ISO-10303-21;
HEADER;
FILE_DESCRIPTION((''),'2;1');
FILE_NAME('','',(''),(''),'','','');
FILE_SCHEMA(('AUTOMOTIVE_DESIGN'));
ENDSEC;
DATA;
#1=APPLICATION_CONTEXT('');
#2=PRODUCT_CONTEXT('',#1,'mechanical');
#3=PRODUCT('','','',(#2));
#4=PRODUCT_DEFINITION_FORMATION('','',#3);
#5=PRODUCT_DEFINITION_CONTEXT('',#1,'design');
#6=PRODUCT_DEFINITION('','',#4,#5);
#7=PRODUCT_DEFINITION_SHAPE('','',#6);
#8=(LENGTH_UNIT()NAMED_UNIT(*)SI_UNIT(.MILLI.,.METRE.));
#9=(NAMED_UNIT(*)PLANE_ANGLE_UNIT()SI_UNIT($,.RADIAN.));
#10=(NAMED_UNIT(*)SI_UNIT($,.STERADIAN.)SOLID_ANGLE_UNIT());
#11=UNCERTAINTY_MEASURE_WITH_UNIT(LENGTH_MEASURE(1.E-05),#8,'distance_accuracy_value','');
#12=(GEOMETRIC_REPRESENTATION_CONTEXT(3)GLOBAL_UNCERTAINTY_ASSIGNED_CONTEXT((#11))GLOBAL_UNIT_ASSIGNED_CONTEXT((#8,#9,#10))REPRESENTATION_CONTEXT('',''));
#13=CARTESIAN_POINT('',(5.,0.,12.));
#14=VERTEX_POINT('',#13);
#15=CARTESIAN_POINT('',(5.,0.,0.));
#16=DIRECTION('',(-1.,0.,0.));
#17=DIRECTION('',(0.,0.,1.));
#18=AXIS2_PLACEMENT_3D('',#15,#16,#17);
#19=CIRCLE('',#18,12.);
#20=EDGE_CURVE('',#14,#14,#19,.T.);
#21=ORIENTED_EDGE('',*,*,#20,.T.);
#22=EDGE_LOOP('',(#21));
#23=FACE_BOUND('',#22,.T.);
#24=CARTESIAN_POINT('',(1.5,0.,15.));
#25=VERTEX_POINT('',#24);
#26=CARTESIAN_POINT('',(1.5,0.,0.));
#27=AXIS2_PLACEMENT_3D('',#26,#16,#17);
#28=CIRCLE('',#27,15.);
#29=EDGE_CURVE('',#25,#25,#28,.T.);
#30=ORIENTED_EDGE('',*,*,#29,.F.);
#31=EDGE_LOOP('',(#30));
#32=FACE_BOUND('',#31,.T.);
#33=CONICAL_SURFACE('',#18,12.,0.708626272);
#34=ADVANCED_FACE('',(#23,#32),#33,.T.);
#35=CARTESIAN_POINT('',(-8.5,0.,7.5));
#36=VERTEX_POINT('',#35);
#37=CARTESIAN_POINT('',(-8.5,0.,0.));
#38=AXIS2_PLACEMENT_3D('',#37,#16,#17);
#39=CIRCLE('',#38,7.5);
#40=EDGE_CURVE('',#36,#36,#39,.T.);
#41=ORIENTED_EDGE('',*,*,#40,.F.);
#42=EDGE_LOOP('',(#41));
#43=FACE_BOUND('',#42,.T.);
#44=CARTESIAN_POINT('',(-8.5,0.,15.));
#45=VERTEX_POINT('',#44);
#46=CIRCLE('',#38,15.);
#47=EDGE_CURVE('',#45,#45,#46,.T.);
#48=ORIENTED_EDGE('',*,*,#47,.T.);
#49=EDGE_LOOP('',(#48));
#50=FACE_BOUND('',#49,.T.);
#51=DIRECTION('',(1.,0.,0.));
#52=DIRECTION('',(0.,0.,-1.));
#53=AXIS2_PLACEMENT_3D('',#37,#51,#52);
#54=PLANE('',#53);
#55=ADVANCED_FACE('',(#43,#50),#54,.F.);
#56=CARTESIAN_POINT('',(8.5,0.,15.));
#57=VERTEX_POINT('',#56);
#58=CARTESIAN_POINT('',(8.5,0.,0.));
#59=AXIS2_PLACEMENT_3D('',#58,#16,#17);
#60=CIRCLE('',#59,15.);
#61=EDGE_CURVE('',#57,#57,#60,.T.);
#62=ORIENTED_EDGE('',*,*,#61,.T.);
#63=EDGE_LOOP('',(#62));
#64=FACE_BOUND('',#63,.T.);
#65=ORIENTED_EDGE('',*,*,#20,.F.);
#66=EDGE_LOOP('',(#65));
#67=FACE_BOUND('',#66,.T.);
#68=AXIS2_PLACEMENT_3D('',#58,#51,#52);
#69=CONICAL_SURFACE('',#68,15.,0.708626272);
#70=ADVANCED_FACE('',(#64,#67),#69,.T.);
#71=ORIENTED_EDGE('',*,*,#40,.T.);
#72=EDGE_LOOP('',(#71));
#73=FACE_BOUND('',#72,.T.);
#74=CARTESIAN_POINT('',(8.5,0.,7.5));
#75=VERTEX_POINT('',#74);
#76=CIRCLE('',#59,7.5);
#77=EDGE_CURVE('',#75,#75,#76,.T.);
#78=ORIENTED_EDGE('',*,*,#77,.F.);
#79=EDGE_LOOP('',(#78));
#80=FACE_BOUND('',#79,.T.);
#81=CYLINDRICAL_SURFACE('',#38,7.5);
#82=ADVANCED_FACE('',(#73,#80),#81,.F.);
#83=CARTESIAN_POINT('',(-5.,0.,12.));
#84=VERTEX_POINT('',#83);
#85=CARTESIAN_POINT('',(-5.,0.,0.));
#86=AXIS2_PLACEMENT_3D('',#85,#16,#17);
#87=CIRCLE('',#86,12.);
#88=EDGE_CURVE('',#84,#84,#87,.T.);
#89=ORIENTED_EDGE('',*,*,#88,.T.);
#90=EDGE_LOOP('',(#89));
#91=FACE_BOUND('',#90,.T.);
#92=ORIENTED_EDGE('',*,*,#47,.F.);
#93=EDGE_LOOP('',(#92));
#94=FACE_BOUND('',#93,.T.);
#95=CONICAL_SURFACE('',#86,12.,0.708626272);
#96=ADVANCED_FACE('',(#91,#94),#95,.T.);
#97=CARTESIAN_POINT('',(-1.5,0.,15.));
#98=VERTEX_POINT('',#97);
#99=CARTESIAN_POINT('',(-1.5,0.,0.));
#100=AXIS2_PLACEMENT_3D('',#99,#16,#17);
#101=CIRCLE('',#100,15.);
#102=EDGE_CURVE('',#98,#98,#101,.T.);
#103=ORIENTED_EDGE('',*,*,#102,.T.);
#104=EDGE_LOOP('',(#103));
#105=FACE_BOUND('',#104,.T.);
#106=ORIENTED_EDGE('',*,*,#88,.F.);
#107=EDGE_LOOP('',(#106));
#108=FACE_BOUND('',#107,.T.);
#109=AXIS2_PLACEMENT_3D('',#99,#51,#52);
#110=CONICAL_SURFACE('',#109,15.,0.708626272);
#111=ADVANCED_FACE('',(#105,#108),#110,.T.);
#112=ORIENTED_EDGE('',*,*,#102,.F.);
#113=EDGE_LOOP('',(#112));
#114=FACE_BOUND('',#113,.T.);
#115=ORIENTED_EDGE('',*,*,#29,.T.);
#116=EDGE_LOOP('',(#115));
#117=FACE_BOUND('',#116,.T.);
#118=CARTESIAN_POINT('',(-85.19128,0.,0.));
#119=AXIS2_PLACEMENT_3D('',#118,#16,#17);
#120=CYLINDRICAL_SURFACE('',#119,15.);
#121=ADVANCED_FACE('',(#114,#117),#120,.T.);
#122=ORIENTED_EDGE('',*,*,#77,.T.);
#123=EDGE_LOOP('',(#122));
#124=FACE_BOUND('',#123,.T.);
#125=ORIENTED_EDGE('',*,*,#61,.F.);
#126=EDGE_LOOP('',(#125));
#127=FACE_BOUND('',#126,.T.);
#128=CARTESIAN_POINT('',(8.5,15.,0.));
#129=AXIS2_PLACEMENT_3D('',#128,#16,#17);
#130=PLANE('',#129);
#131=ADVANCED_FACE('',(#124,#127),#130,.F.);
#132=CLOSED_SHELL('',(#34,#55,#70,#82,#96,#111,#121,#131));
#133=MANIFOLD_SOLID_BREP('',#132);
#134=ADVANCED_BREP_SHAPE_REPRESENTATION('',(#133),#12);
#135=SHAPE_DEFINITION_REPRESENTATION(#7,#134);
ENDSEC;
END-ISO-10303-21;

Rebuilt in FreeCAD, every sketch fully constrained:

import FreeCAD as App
import Part
import Sketcher

doc = App.newDocument("Part")
body = doc.addObject("PartDesign::Body", "Body")

sketch1 = body.newObject("Sketcher::SketchObject", "Sketch")
sketch1.AttachmentSupport = (doc.getObject("XY_Plane"), [""])
sketch1.MapMode = "FlatFace"
sketch1.addGeometry([
    Part.LineSegment(App.Vector(-8.5, 15, 0), App.Vector(-8.5, 0, 0)),
    Part.LineSegment(App.Vector(-8.5, 0, 0), App.Vector(8.5, 0, 0)),
    Part.LineSegment(App.Vector(8.5, 0, 0), App.Vector(8.5, 15, 0)),
    Part.LineSegment(App.Vector(8.5, 15, 0), App.Vector(5, 12, 0)),
    Part.LineSegment(App.Vector(5, 12, 0), App.Vector(1.5, 15, 0)),
    Part.LineSegment(App.Vector(1.5, 15, 0), App.Vector(-1.5, 15, 0)),
    Part.LineSegment(App.Vector(-1.5, 15, 0), App.Vector(-5, 12, 0)),
    Part.LineSegment(App.Vector(-5, 12, 0), App.Vector(-8.5, 15, 0)),
], False)
sketch1.addConstraint([
    Sketcher.Constraint("Coincident", 0, 2, 1, 1),
    Sketcher.Constraint("Coincident", 1, 2, 2, 1),
    Sketcher.Constraint("Coincident", 2, 2, 3, 1),
    Sketcher.Constraint("Coincident", 3, 2, 4, 1),
    Sketcher.Constraint("Coincident", 4, 2, 5, 1),
    Sketcher.Constraint("Coincident", 5, 2, 6, 1),
    Sketcher.Constraint("Coincident", 6, 2, 7, 1),
    Sketcher.Constraint("Coincident", 7, 2, 0, 1),
    Sketcher.Constraint("Vertical", 0),
    Sketcher.Constraint("Horizontal", 1),
    Sketcher.Constraint("Vertical", 2),
    Sketcher.Constraint("Horizontal", 5),
    Sketcher.Constraint("Symmetric", 0, 2, 1, 2, -1, 1),
    Sketcher.Constraint("Symmetric", 3, 2, 6, 2, -2),
    Sketcher.Constraint("Parallel", 3, 6),
    Sketcher.Constraint("Parallel", 4, 7),
    Sketcher.Constraint("Horizontal", 2, 2, 4, 2),
    Sketcher.Constraint("Horizontal", 5, 2, 7, 2),
    Sketcher.Constraint("DistanceX", 1, 1, 1, 2, 17.0),
    Sketcher.Constraint("DistanceX", 5, 2, 5, 1, 3.0),
    Sketcher.Constraint("DistanceY", 0, 2, 0, 1, 15.0),
    Sketcher.Constraint("DistanceY", -1, 1, 3, 2, 12.0),
])
revolution = body.newObject("PartDesign::Revolution", "Revolution")
revolution.Profile = sketch1
revolution.ReferenceAxis = (sketch1, ["H_Axis"])
revolution.Angle = 360

sketch2 = body.newObject("Sketcher::SketchObject", "Sketch001")
sketch2.AttachmentSupport = (doc.getObject("YZ_Plane"), [""])
sketch2.MapMode = "FlatFace"
sketch2.AttachmentOffset = App.Placement(App.Vector(0, 0, -8.5), App.Rotation())
sketch2.addGeometry(Part.Circle(App.Vector(0, 0, 0), App.Vector(0, 0, 1), 8), False)
sketch2.addConstraint([
    Sketcher.Constraint("Coincident", 0, 3, -1, 1),
    Sketcher.Constraint("Diameter", 0, 15.0),
])
doc.recompute()
hole = body.newObject("PartDesign::Hole", "Hole")
hole.Profile = sketch2
hole.ThreadType = "None"
hole.Diameter = 15
hole.DepthType = "ThroughAll"
hole.Reversed = True

doc.recompute()
